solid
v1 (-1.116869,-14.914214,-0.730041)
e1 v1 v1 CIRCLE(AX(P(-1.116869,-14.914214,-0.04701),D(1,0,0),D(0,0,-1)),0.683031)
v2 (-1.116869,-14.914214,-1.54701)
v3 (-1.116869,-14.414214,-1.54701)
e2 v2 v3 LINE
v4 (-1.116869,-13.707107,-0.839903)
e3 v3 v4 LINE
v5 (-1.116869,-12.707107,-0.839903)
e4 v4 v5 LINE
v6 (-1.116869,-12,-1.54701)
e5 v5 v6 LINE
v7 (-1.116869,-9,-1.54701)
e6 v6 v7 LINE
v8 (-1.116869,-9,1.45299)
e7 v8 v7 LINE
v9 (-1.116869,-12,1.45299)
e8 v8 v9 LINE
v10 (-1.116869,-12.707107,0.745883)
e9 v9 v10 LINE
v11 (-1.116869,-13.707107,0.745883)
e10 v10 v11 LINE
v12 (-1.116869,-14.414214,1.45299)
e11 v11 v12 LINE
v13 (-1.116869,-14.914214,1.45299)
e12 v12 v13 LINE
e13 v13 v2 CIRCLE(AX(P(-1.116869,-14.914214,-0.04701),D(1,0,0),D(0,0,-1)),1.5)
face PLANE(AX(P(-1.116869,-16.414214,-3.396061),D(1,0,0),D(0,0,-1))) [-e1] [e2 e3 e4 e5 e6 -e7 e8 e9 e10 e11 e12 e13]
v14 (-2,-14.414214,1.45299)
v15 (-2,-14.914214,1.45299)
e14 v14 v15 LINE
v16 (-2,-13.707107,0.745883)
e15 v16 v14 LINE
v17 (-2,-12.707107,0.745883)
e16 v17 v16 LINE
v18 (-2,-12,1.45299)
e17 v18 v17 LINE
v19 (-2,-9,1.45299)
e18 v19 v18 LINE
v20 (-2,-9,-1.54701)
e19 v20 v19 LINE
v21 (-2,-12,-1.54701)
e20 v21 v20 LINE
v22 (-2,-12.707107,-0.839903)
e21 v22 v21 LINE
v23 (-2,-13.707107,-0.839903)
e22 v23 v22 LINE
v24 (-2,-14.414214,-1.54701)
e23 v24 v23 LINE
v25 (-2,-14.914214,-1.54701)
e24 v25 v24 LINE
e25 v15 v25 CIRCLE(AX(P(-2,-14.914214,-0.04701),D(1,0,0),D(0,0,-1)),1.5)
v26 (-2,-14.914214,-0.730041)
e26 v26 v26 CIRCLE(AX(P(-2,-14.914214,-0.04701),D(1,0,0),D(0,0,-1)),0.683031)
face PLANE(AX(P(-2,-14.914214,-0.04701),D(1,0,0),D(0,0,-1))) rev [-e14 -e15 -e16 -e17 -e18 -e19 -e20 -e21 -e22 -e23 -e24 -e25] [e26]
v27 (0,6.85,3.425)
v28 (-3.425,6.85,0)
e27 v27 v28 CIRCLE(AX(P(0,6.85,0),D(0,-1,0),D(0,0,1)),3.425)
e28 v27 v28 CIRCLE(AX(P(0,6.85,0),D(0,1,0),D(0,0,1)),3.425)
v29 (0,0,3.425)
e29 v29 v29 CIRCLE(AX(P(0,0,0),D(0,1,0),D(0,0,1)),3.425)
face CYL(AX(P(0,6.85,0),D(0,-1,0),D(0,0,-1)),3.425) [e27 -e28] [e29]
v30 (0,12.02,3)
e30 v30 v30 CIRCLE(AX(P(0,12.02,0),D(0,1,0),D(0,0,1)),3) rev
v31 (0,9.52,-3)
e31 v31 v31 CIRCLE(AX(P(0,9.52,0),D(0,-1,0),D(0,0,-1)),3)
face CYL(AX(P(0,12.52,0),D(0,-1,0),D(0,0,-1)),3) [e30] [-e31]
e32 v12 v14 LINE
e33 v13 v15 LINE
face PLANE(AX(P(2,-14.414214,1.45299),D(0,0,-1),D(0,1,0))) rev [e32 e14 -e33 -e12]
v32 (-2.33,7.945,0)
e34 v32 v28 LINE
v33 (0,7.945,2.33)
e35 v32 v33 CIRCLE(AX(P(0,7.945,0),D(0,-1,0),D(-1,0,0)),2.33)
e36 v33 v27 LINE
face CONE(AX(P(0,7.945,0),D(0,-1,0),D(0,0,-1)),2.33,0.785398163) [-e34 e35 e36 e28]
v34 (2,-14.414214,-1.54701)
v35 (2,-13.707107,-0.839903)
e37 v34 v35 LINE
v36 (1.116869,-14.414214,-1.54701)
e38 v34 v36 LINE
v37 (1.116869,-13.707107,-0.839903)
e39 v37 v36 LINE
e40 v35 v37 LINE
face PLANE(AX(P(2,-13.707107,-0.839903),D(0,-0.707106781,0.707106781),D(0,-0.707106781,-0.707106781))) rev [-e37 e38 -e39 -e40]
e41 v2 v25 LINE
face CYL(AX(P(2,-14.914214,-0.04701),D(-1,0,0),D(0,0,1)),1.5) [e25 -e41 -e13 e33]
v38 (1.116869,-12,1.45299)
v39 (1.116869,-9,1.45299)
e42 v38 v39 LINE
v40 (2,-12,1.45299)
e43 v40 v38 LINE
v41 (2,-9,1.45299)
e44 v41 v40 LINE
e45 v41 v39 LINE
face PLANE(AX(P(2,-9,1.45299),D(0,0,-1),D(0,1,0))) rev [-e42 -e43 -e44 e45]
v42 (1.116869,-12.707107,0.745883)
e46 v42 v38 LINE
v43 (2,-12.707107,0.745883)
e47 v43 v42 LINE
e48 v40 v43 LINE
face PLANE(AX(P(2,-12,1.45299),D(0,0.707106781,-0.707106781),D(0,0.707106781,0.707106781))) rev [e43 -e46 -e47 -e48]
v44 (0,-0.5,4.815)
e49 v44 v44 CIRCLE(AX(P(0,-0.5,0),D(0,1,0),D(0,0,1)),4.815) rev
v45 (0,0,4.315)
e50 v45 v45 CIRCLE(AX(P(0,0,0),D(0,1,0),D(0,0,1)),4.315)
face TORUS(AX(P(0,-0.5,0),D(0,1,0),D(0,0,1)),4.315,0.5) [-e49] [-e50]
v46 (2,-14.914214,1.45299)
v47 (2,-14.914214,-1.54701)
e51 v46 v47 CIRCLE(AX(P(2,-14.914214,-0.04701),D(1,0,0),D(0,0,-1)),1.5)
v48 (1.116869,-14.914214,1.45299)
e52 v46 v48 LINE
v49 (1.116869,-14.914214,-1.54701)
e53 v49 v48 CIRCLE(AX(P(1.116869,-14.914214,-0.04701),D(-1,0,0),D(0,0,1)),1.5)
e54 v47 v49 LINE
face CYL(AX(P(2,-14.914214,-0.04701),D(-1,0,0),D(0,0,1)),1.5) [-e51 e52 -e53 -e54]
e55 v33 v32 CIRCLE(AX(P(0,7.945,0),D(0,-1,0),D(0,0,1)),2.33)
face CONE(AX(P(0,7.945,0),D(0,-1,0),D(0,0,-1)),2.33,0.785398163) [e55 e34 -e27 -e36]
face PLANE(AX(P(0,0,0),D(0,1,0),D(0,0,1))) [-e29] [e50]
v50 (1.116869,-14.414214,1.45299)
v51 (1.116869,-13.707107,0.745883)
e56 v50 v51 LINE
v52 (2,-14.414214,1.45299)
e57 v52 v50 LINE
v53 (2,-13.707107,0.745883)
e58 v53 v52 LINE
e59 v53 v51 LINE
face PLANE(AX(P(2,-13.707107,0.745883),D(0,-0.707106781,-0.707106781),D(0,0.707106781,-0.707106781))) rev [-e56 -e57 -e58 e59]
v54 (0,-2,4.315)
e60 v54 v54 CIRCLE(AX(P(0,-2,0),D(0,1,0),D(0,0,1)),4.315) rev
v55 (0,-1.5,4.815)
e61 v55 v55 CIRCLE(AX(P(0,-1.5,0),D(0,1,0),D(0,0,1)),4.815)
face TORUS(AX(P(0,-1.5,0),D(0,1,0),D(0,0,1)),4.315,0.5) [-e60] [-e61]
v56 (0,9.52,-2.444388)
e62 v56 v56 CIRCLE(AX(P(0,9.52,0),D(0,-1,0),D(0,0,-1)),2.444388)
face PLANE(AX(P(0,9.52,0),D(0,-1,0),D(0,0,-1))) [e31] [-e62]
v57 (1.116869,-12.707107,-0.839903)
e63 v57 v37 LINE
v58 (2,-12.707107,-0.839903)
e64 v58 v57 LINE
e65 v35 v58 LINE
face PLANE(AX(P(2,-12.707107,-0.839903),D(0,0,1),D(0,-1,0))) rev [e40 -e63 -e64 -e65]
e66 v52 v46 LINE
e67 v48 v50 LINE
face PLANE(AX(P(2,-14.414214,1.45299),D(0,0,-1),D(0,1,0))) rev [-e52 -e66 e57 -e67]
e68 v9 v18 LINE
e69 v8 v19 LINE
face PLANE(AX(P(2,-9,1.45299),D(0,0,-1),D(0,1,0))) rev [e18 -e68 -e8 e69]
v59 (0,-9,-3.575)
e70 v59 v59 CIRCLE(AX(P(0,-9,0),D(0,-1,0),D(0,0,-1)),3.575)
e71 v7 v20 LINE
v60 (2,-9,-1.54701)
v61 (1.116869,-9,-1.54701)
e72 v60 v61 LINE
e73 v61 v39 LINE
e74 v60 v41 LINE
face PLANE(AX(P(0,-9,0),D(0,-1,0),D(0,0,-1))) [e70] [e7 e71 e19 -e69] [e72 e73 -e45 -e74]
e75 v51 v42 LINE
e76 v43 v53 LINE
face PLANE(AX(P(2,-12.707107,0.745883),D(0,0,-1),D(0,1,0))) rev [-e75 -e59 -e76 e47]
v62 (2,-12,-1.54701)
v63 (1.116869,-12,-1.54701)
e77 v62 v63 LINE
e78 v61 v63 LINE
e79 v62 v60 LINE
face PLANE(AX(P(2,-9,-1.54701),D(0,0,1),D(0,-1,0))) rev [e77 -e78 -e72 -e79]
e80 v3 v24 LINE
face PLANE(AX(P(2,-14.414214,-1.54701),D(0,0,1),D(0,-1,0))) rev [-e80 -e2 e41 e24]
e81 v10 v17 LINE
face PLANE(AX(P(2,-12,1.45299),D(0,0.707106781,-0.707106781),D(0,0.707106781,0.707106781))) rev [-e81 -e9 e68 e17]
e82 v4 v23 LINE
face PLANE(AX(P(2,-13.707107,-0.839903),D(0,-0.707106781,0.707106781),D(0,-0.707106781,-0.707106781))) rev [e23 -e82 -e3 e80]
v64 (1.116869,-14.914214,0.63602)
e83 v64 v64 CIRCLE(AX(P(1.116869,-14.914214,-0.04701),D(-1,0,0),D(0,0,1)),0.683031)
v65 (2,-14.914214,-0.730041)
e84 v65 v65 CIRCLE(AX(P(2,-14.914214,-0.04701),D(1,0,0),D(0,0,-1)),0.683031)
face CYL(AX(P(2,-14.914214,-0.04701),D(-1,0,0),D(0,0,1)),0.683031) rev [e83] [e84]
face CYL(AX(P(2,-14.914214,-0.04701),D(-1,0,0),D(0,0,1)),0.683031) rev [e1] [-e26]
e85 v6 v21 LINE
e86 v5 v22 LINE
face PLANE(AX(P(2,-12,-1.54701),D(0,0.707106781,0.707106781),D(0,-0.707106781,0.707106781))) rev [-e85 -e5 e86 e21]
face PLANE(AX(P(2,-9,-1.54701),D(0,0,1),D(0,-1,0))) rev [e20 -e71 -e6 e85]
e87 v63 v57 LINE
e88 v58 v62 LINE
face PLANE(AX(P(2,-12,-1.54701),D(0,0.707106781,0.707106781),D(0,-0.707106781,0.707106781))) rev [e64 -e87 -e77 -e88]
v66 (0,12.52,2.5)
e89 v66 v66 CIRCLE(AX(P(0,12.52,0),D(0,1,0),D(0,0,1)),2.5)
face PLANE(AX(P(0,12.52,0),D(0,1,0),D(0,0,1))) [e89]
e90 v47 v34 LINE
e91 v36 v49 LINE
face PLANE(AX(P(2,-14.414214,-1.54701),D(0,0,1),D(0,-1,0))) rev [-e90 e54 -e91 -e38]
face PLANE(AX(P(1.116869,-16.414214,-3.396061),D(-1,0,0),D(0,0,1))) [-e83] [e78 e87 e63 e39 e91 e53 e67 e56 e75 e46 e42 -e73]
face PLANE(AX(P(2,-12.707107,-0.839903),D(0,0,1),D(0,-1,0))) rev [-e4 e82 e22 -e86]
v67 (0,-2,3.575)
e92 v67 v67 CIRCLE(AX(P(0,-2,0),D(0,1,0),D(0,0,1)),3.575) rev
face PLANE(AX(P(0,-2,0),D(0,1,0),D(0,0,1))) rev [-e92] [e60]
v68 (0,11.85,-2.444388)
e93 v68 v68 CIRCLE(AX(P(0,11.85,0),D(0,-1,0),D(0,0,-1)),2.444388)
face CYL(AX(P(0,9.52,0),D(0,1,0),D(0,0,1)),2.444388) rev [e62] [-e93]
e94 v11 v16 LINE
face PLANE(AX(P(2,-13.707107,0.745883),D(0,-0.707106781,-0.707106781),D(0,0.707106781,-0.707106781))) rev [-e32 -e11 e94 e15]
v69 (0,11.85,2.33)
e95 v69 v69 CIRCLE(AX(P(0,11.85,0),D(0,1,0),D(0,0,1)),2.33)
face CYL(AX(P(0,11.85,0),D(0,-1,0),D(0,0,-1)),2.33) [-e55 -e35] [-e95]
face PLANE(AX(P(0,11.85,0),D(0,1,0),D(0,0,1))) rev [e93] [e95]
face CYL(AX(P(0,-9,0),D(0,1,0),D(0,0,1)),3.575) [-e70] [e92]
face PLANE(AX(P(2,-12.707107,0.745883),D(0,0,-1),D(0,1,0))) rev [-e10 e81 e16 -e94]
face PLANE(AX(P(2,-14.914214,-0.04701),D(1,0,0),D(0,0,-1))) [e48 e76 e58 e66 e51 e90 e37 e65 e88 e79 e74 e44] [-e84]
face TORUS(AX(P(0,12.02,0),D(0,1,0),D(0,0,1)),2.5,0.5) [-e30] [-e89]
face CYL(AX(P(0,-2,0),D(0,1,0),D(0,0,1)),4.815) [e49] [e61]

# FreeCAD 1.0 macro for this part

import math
import FreeCAD as App
import Part
import Sketcher
Q = App.Units.Quantity


def edges_at(feature, points):
    """Names of the edges that pass closest to the given points."""
    edges = feature.Shape.Edges
    near = lambda p: min(range(len(edges)), key=lambda i: edges[i].distToShape(Part.Vertex(*p))[0])
    return sorted({f"Edge{near(p) + 1}" for p in points})


def add_polygon(sketch, points):
    """Adds a closed chain of lines whose ends are joined by coincident constraints."""
    first, n = sketch.GeometryCount, len(points)
    for a, b in zip(points, points[1:] + points[:1]):
        sketch.addGeometry(Part.LineSegment(App.Vector(*a, 0), App.Vector(*b, 0)), False)
    for i in range(n):
        sketch.addConstraint(Sketcher.Constraint("Coincident", first + i, 2, first + (i + 1) % n, 1))

doc = App.newDocument("Part")
body = doc.addObject("PartDesign::Body", "Body")

sketch1 = body.newObject("Sketcher::SketchObject", "Sketch")
sketch1.AttachmentSupport = (doc.getObject("XZ_Plane"), [""])
sketch1.MapMode = "FlatFace"
sketch1.addGeometry(Part.Circle(App.Vector(0, 0, 0), App.Vector(0, 0, 1), 4.815), False)
sketch1.addConstraint(Sketcher.Constraint("Coincident", 0, 3, -1, 1))
sketch1.addConstraint(Sketcher.Constraint("Diameter", 0, Q("9.63 mm")))
pad1 = body.newObject("PartDesign::Pad", "Pad")
pad1.Profile = sketch1
pad1.Length = 2

sketch2 = body.newObject("Sketcher::SketchObject", "Sketch001")
sketch2.AttachmentSupport = (doc.getObject("XZ_Plane"), [""])
sketch2.MapMode = "FlatFace"
sketch2.AttachmentOffset = App.Placement(App.Vector(0, 0, 2), App.Rotation())
sketch2.addGeometry(Part.Circle(App.Vector(0, 0, 0), App.Vector(0, 0, 1), 3.575), False)
sketch2.addConstraint(Sketcher.Constraint("Coincident", 0, 3, -1, 1))
sketch2.addConstraint(Sketcher.Constraint("Diameter", 0, Q("7.15 mm")))
pad2 = body.newObject("PartDesign::Pad", "Pad001")
pad2.Profile = sketch2
pad2.Length = 7

sketch3 = body.newObject("Sketcher::SketchObject", "Sketch002")
sketch3.AttachmentSupport = (doc.getObject("XZ_Plane"), [""])
sketch3.MapMode = "FlatFace"
sketch3.addGeometry(Part.Circle(App.Vector(0, 0, 0), App.Vector(0, 0, 1), 3.425), False)
sketch3.addConstraint(Sketcher.Constraint("Coincident", 0, 3, -1, 1))
sketch3.addConstraint(Sketcher.Constraint("Diameter", 0, Q("6.85 mm")))
pad3 = body.newObject("PartDesign::Pad", "Pad002")
pad3.Profile = sketch3
pad3.Length = 6.85
pad3.Reversed = True

sketch4 = body.newObject("Sketcher::SketchObject", "Sketch003")
sketch4.AttachmentSupport = (doc.getObject("XZ_Plane"), [""])
sketch4.MapMode = "FlatFace"
sketch4.AttachmentOffset = App.Placement(App.Vector(0, 0, -6.85), App.Rotation())
sketch4.addGeometry(Part.Circle(App.Vector(0, 0, 0), App.Vector(0, 0, 1), 2.33), False)
sketch4.addConstraint(Sketcher.Constraint("Coincident", 0, 3, -1, 1))
sketch4.addConstraint(Sketcher.Constraint("Diameter", 0, Q("4.66 mm")))
pad4 = body.newObject("PartDesign::Pad", "Pad003")
pad4.Profile = sketch4
pad4.Length = 5
pad4.Reversed = True

sketch5 = body.newObject("Sketcher::SketchObject", "Sketch004")
sketch5.AttachmentSupport = (doc.getObject("XY_Plane"), [""])
sketch5.MapMode = "FlatFace"
add_polygon(sketch5, [(-2.33, 7.945), (-3.425, 6.85), (-2.33, 6.85)])
sketch5.addConstraint(Sketcher.Constraint("Horizontal", 1))
sketch5.addConstraint(Sketcher.Constraint("Vertical", 2))
sketch5.addConstraint(Sketcher.Constraint("Equal", 1, 2))
sketch5.addConstraint(Sketcher.Constraint("DistanceX", 1, 1, 1, 2, Q("1.095 mm")))
sketch5.addConstraint(Sketcher.Constraint("DistanceY", -1, 1, 0, 2, Q("6.85 mm")))
sketch5.addConstraint(Sketcher.Constraint("DistanceX", 1, 2, -1, 1, Q("2.33 mm")))

sketch6 = body.newObject("Sketcher::SketchObject", "Sketch005")
sketch6.AttachmentSupport = (doc.getObject("XZ_Plane"), [""])
sketch6.MapMode = "FlatFace"
sketch6.AttachmentOffset = App.Placement(App.Vector(0, 0, -6.85), App.Rotation())
sketch6.addGeometry(Part.ArcOfCircle(Part.Circle(App.Vector(0, 0, 0), App.Vector(0, 0, 1), 2.33), math.radians(0), math.radians(90)), False)
sketch6.addGeometry(Part.ArcOfCircle(Part.Circle(App.Vector(0, 0, 0), App.Vector(0, 0, 1), 2.33), math.radians(-90), math.radians(0)), False)
sketch6.addGeometry(Part.ArcOfCircle(Part.Circle(App.Vector(0, 0, 0), App.Vector(0, 0, 1), 2.33), math.radians(-180), math.radians(-90)), False)
sketch6.addGeometry(Part.ArcOfCircle(Part.Circle(App.Vector(0, 0, 0), App.Vector(0, 0, 1), 2.33), math.radians(90), math.radians(180)), False)
sketch6.addConstraint(Sketcher.Constraint("Tangent", 0, 1, 1, 2))
sketch6.addConstraint(Sketcher.Constraint("Tangent", 1, 1, 2, 2))
sketch6.addConstraint(Sketcher.Constraint("Tangent", 2, 1, 3, 2))
sketch6.addConstraint(Sketcher.Constraint("Tangent", 3, 1, 0, 2))
sketch6.addConstraint(Sketcher.Constraint("Coincident", 0, 3, -1, 1))
sketch6.addConstraint(Sketcher.Constraint("Equal", 0, 1))
sketch6.addConstraint(Sketcher.Constraint("PointOnObject", 0, 1, -1))
sketch6.addConstraint(Sketcher.Constraint("PointOnObject", 1, 1, -2))
sketch6.addConstraint(Sketcher.Constraint("PointOnObject", 2, 1, -1))
sketch6.addConstraint(Sketcher.Constraint("PointOnObject", 3, 1, -2))
sketch6.addConstraint(Sketcher.Constraint("Radius", 0, Q("2.33 mm")))
doc.recompute()

additivepipe = body.newObject("PartDesign::AdditivePipe", "AdditivePipe")
additivepipe.Profile = sketch5
additivepipe.Spine = (sketch6, ["Edge1", "Edge2", "Edge3", "Edge4"])

sketch7 = body.newObject("Sketcher::SketchObject", "Sketch006")
sketch7.AttachmentSupport = (doc.getObject("XZ_Plane"), [""])
sketch7.MapMode = "FlatFace"
sketch7.AttachmentOffset = App.Placement(App.Vector(0, 0, -11.85), App.Rotation())
sketch7.addGeometry(Part.Circle(App.Vector(0, 0, 0), App.Vector(0, 0, 1), 3), False)
sketch7.addConstraint(Sketcher.Constraint("Coincident", 0, 3, -1, 1))
sketch7.addConstraint(Sketcher.Constraint("Diameter", 0, Q("6 mm")))
pad5 = body.newObject("PartDesign::Pad", "Pad004")
pad5.Profile = sketch7
pad5.Length = 0.67
pad5.Reversed = True

sketch8 = body.newObject("Sketcher::SketchObject", "Sketch007")
sketch8.AttachmentSupport = (doc.getObject("XZ_Plane"), [""])
sketch8.MapMode = "FlatFace"
sketch8.AttachmentOffset = App.Placement(App.Vector(0, 0, -9.52), App.Rotation())
sketch8.addGeometry(Part.Circle(App.Vector(0, 0, 0), App.Vector(0, 0, 1), 3), False)
sketch8.addGeometry(Part.Circle(App.Vector(0, 0, 0), App.Vector(0, 0, 1), 2.444388), False)
sketch8.addConstraint(Sketcher.Constraint("Coincident", 0, 3, -1, 1))
sketch8.addConstraint(Sketcher.Constraint("Coincident", 1, 3, -1, 1))
sketch8.addConstraint(Sketcher.Constraint("Diameter", 0, Q("6 mm")))
sketch8.addConstraint(Sketcher.Constraint("Diameter", 1, Q("4.888776 mm")))
pad6 = body.newObject("PartDesign::Pad", "Pad005")
pad6.Profile = sketch8
pad6.Length = 2.33
pad6.Reversed = True

sketch9 = body.newObject("Sketcher::SketchObject", "Sketch008")
sketch9.AttachmentSupport = (doc.getObject("YZ_Plane"), [""])
sketch9.MapMode = "FlatFace"
sketch9.addGeometry(Part.LineSegment(App.Vector(-9, -1.54701, 0), App.Vector(-9, 1.45299, 0)), False)
sketch9.addGeometry(Part.LineSegment(App.Vector(-9, 1.45299, 0), App.Vector(-12, 1.45299, 0)), False)
sketch9.addGeometry(Part.LineSegment(App.Vector(-12, 1.45299, 0), App.Vector(-12.707107, 0.745883, 0)), False)
sketch9.addGeometry(Part.LineSegment(App.Vector(-12.707107, 0.745883, 0), App.Vector(-13.707107, 0.745883, 0)), False)
sketch9.addGeometry(Part.LineSegment(App.Vector(-13.707107, 0.745883, 0), App.Vector(-14.414214, 1.45299, 0)), False)
sketch9.addGeometry(Part.LineSegment(App.Vector(-14.414214, 1.45299, 0), App.Vector(-14.914214, 1.45299, 0)), False)
sketch9.addGeometry(Part.ArcOfCircle(Part.Circle(App.Vector(-14.914214, -0.04701, 0), App.Vector(0, 0, 1), 1.5), math.radians(90), math.radians(270)), False)
sketch9.addGeometry(Part.LineSegment(App.Vector(-14.914214, -1.54701, 0), App.Vector(-14.414214, -1.54701, 0)), False)
sketch9.addGeometry(Part.LineSegment(App.Vector(-14.414214, -1.54701, 0), App.Vector(-13.707107, -0.839903, 0)), False)
sketch9.addGeometry(Part.LineSegment(App.Vector(-13.707107, -0.839903, 0), App.Vector(-12.707107, -0.839903, 0)), False)
sketch9.addGeometry(Part.LineSegment(App.Vector(-12.707107, -0.839903, 0), App.Vector(-12, -1.54701, 0)), False)
sketch9.addGeometry(Part.LineSegment(App.Vector(-12, -1.54701, 0), App.Vector(-9, -1.54701, 0)), False)
sketch9.addGeometry(Part.Circle(App.Vector(-14.914214, -0.04701, 0), App.Vector(0, 0, 1), 0.683031), False)
sketch9.addConstraint(Sketcher.Constraint("Coincident", 0, 2, 1, 1))
sketch9.addConstraint(Sketcher.Constraint("Coincident", 1, 2, 2, 1))
sketch9.addConstraint(Sketcher.Constraint("Coincident", 2, 2, 3, 1))
sketch9.addConstraint(Sketcher.Constraint("Coincident", 3, 2, 4, 1))
sketch9.addConstraint(Sketcher.Constraint("Coincident", 4, 2, 5, 1))
sketch9.addConstraint(Sketcher.Constraint("Tangent", 5, 2, 6, 1))
sketch9.addConstraint(Sketcher.Constraint("Tangent", 6, 2, 7, 1))
sketch9.addConstraint(Sketcher.Constraint("Coincident", 7, 2, 8, 1))
sketch9.addConstraint(Sketcher.Constraint("Coincident", 8, 2, 9, 1))
sketch9.addConstraint(Sketcher.Constraint("Coincident", 9, 2, 10, 1))
sketch9.addConstraint(Sketcher.Constraint("Coincident", 10, 2, 11, 1))
sketch9.addConstraint(Sketcher.Constraint("Coincident", 11, 2, 0, 1))
sketch9.addConstraint(Sketcher.Constraint("Vertical", 0))
sketch9.addConstraint(Sketcher.Constraint("Horizontal", 1))
sketch9.addConstraint(Sketcher.Constraint("Horizontal", 3))
sketch9.addConstraint(Sketcher.Constraint("Horizontal", 5))
sketch9.addConstraint(Sketcher.Constraint("Horizontal", 7))
sketch9.addConstraint(Sketcher.Constraint("Horizontal", 9))
sketch9.addConstraint(Sketcher.Constraint("Horizontal", 11))
sketch9.addConstraint(Sketcher.Constraint("Coincident", 12, 3, 6, 3))
sketch9.addConstraint(Sketcher.Constraint("Perpendicular", 2, 4))
sketch9.addConstraint(Sketcher.Constraint("Perpendicular", 4, 8))
sketch9.addConstraint(Sketcher.Constraint("Perpendicular", 8, 10))
sketch9.addConstraint(Sketcher.Constraint("Horizontal", 1, 2, 4, 2))
sketch9.addConstraint(Sketcher.Constraint("Horizontal", 7, 2, 10, 2))
sketch9.addConstraint(Sketcher.Constraint("Vertical", 4, 2, 7, 2))
sketch9.addConstraint(Sketcher.Constraint("Vertical", 3, 2, 8, 2))
sketch9.addConstraint(Sketcher.Constraint("Vertical", 2, 2, 9, 2))
sketch9.addConstraint(Sketcher.Constraint("Vertical", 1, 2, 10, 2))
sketch9.addConstraint(Sketcher.Constraint("Equal", 11, 0))
sketch9.addConstraint(Sketcher.Constraint("Radius", 6, Q("1.5 mm")))
sketch9.addConstraint(Sketcher.Constraint("DistanceX", 3, 2, 3, 1, Q("1 mm")))
sketch9.addConstraint(Sketcher.Constraint("Distance", 2, Q("1 mm")))
sketch9.addConstraint(Sketcher.Constraint("DistanceX", 5, 2, 5, 1, Q("0.5 mm")))
sketch9.addConstraint(Sketcher.Constraint("DistanceX", 0, 2, -1, 1, Q("9 mm")))
sketch9.addConstraint(Sketcher.Constraint("Diameter", 12, Q("1.366061 mm")))
sketch9.addConstraint(Sketcher.Constraint("DistanceY", 6, 3, -1, 1, Q("0.04701 mm")))
pad7 = body.newObject("PartDesign::Pad", "Pad006")
pad7.Profile = sketch9
pad7.Length = 4
pad7.Midplane = True

sketch10 = body.newObject("Sketcher::SketchObject", "Sketch009")
sketch10.AttachmentSupport = (doc.getObject("XZ_Plane"), [""])
sketch10.MapMode = "FlatFace"
sketch10.AttachmentOffset = App.Placement(App.Vector(0, 0, 9), App.Rotation())
add_polygon(sketch10, [(-1.116869, 3.396061), (-1.116869, -3.396061), (1.116869, -3.396061), (1.116869, 3.396061)])
sketch10.addConstraint(Sketcher.Constraint("Vertical", 0))
sketch10.addConstraint(Sketcher.Constraint("Horizontal", 1))
sketch10.addConstraint(Sketcher.Constraint("Vertical", 2))
sketch10.addConstraint(Sketcher.Constraint("Horizontal", 3))
sketch10.addConstraint(Sketcher.Constraint("Symmetric", 0, 2, 2, 2, -1, 1))
sketch10.addConstraint(Sketcher.Constraint("DistanceY", 0, 2, 0, 1, Q("6.792122 mm")))
sketch10.addConstraint(Sketcher.Constraint("DistanceX", 1, 1, 1, 2, Q("2.233738 mm")))
pocket1 = body.newObject("PartDesign::Pocket", "Pocket")
pocket1.Profile = sketch10
pocket1.Type = "ThroughAll"
pocket1.Reversed = True
doc.recompute()

fillet = body.newObject("PartDesign::Fillet", "Fillet")
fillet.Base = (pocket1, edges_at(pocket1, [(0, 0, -4.815), (0, -2, -4.815)]))
fillet.Radius = 0.5
doc.recompute()

fillet2 = body.newObject("PartDesign::Fillet", "Fillet001")
fillet2.Base = (fillet, edges_at(fillet, [(0, 12.52, -3)]))
fillet2.Radius = 0.5

doc.recompute()
